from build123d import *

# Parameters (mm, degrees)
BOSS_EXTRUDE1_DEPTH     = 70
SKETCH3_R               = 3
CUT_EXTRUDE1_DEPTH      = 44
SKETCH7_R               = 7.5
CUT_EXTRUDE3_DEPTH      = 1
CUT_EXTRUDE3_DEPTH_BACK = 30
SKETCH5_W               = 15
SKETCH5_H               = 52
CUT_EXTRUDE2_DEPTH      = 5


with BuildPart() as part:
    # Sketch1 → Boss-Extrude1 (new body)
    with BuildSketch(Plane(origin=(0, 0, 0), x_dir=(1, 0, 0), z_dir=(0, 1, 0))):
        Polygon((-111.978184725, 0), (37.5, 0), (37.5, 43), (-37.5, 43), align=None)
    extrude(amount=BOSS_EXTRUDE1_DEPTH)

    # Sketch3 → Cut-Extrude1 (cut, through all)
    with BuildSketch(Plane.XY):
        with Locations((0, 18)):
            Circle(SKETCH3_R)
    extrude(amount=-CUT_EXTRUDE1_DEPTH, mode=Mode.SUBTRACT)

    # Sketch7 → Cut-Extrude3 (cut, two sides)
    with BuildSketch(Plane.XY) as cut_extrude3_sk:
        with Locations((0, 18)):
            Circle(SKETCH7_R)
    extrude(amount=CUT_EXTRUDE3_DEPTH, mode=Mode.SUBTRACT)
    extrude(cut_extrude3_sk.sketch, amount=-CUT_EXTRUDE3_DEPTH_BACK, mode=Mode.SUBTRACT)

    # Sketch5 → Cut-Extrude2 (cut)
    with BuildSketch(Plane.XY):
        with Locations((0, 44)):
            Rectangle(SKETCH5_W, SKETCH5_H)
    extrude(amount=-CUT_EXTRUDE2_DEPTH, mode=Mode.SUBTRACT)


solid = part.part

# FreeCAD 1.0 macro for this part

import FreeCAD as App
import Part
import Sketcher

V = App.Vector
Q = App.Units.Quantity

doc = App.newDocument("Part")
params = doc.addObject("Spreadsheet::Sheet", "Params")
for row, (alias, value) in enumerate([
    ("sketch1_width", "75 mm"),
    ("sketch1_height", "43 mm"),
    ("pad1_length", "70 mm"),
    ("sketch2_diameter", "6 mm"),
    ("sketch3_diameter", "15 mm"),
    ("pocket2_length", "1 mm"),
    ("pocket2_length2", "30 mm"),
    ("sketch4_width", "15 mm"),
    ("sketch4_height", "52 mm"),
    ("pocket3_length", "5 mm"),
], start=1):
    params.set(f"A{row}", alias)
    params.set(f"B{row}", "=" + value)
    params.setAlias(f"B{row}", alias)

body = doc.addObject("PartDesign::Body", "Body")

sketch1 = body.newObject("Sketcher::SketchObject", "Sketch")
sketch1.AttachmentSupport = (doc.getObject("XZ_Plane"), [""])
sketch1.MapMode = "FlatFace"
sketch1.addGeometry([
    Part.LineSegment(V(-111.978185, 0, 0), V(37.5, 0, 0)),
    Part.LineSegment(V(37.5, 0, 0), V(37.5, -43, 0)),
    Part.LineSegment(V(37.5, -43, 0), V(-37.5, -43, 0)),
    Part.LineSegment(V(-37.5, -43, 0), V(-111.978185, 0, 0)),
], False)
sketch1.addConstraint([
    Sketcher.Constraint("Coincident", 0, 2, 1, 1),
    Sketcher.Constraint("Coincident", 1, 2, 2, 1),
    Sketcher.Constraint("Coincident", 2, 2, 3, 1),
    Sketcher.Constraint("Coincident", 3, 2, 0, 1),
    Sketcher.Constraint("Horizontal", 0),
    Sketcher.Constraint("Vertical", 1),
    Sketcher.Constraint("Horizontal", 2),
    Sketcher.Constraint("PointOnObject", 0, 2, -1),
    Sketcher.Constraint("DistanceX", 2, 2, 2, 1, 75.0),
    Sketcher.Constraint("DistanceY", 1, 2, 1, 1, 43.0),
    Sketcher.Constraint("Angle", 3, Q("150 deg")),
    Sketcher.Constraint("DistanceX", -1, 1, 0, 2, 37.5),
])
sketch1.setExpression("Constraints[8]", "Params.sketch1_width")
sketch1.setExpression("Constraints[9]", "Params.sketch1_height")
pad1 = body.newObject("PartDesign::Pad", "Pad")
pad1.Profile = sketch1
pad1.setExpression("Length", "Params.pad1_length")
pad1.Reversed = True

sketch2 = body.newObject("Sketcher::SketchObject", "Sketch001")
sketch2.AttachmentSupport = (doc.getObject("XY_Plane"), [""])
sketch2.MapMode = "FlatFace"
sketch2.addGeometry(Part.Circle(V(0, 18, 0), V(0, 0, 1), 3), False)
sketch2.addConstraint([
    Sketcher.Constraint("PointOnObject", 0, 3, -2),
    Sketcher.Constraint("Diameter", 0, 6.0),
    Sketcher.Constraint("DistanceY", -1, 1, 0, 3, 18.0),
])
sketch2.setExpression("Constraints[1]", "Params.sketch2_diameter")
pocket1 = body.newObject("PartDesign::Pocket", "Pocket")
pocket1.Profile = sketch2
pocket1.Type = "ThroughAll"

sketch3 = body.newObject("Sketcher::SketchObject", "Sketch002")
sketch3.AttachmentSupport = (doc.getObject("XY_Plane"), [""])
sketch3.MapMode = "FlatFace"
sketch3.addGeometry(Part.Circle(V(0, 18, 0), V(0, 0, 1), 7.5), False)
sketch3.addConstraint([
    Sketcher.Constraint("PointOnObject", 0, 3, -2),
    Sketcher.Constraint("Diameter", 0, 15.0),
    Sketcher.Constraint("DistanceY", -1, 1, 0, 3, 18.0),
])
sketch3.setExpression("Constraints[1]", "Params.sketch3_diameter")
pocket2 = body.newObject("PartDesign::Pocket", "Pocket001")
pocket2.Profile = sketch3
pocket2.Type = "TwoLengths"
pocket2.setExpression("Length", "Params.pocket2_length")
pocket2.setExpression("Length2", "Params.pocket2_length2")
pocket2.Reversed = True

sketch4 = body.newObject("Sketcher::SketchObject", "Sketch003")
sketch4.AttachmentSupport = (doc.getObject("XY_Plane"), [""])
sketch4.MapMode = "FlatFace"
sketch4.addGeometry([
    Part.LineSegment(V(-7.5, 70, 0), V(-7.5, 18, 0)),
    Part.LineSegment(V(-7.5, 18, 0), V(7.5, 18, 0)),
    Part.LineSegment(V(7.5, 18, 0), V(7.5, 70, 0)),
    Part.LineSegment(V(7.5, 70, 0), V(-7.5, 70, 0)),
], False)
sketch4.addConstraint([
    Sketcher.Constraint("Coincident", 0, 2, 1, 1),
    Sketcher.Constraint("Coincident", 1, 2, 2, 1),
    Sketcher.Constraint("Coincident", 2, 2, 3, 1),
    Sketcher.Constraint("Coincident", 3, 2, 0, 1),
    Sketcher.Constraint("Vertical", 0),
    Sketcher.Constraint("Horizontal", 1),
    Sketcher.Constraint("Vertical", 2),
    Sketcher.Constraint("Horizontal", 3),
    Sketcher.Constraint("DistanceX", 1, 1, 1, 2, 15.0),
    Sketcher.Constraint("DistanceY", 0, 2, 0, 1, 52.0),
    Sketcher.Constraint("DistanceY", -1, 1, 0, 2, 18.0),
    Sketcher.Constraint("DistanceX", 0, 2, -1, 1, 7.5),
])
sketch4.setExpression("Constraints[8]", "Params.sketch4_width")
sketch4.setExpression("Constraints[9]", "Params.sketch4_height")
pocket3 = body.newObject("PartDesign::Pocket", "Pocket002")
pocket3.Profile = sketch4
pocket3.setExpression("Length", "Params.pocket3_length")

doc.recompute()
